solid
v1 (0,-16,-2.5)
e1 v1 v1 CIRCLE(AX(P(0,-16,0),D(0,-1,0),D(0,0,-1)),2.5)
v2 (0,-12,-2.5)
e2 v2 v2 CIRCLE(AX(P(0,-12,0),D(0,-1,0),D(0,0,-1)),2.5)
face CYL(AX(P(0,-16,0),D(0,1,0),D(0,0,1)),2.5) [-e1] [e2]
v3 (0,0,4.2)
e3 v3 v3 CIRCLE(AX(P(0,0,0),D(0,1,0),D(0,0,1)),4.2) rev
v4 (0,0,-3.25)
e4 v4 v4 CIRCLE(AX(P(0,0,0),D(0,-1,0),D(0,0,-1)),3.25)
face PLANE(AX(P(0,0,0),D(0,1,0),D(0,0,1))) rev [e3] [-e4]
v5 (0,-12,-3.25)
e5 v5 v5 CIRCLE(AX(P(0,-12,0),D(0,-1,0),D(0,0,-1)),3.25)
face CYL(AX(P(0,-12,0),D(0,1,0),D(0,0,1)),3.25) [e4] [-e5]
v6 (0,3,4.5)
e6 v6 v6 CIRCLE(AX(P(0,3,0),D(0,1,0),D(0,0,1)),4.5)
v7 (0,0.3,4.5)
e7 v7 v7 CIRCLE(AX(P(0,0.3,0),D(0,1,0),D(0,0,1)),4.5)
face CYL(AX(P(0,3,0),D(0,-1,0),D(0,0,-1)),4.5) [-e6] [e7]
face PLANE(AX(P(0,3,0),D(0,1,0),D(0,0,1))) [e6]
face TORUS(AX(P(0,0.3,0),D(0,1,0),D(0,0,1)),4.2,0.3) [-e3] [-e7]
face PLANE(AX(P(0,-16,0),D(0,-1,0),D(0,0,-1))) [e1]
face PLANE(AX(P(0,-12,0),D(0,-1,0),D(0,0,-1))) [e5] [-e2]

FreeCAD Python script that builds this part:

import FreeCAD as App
import Part
import Sketcher

V = App.Vector
Q = App.Units.Quantity


def edges_at(feature, points):
    """Names of the edges that pass closest to the given points."""
    edges = feature.Shape.Edges
    near = lambda p: min(range(len(edges)), key=lambda i: edges[i].distToShape(Part.Vertex(*p))[0])
    return sorted({f"Edge{near(p) + 1}" for p in points})

doc = App.newDocument("Part")
body = doc.addObject("PartDesign::Body", "Body")

sketch1 = body.newObject("Sketcher::SketchObject", "Sketch")
sketch1.AttachmentSupport = (doc.getObject("XZ_Plane"), [""])
sketch1.MapMode = "FlatFace"
sketch1.addGeometry(Part.Circle(V(0, 0, 0), V(0, 0, 1), 4.5), False)
sketch1.addConstraint(Sketcher.Constraint("Coincident", 0, 3, -1, 1))
sketch1.addConstraint(Sketcher.Constraint("Diameter", 0, Q("9 mm")))
pad1 = body.newObject("PartDesign::Pad", "Pad")
pad1.Profile = sketch1
pad1.Length = 3
pad1.Reversed = True

sketch2 = body.newObject("Sketcher::SketchObject", "Sketch001")
sketch2.AttachmentSupport = (doc.getObject("XZ_Plane"), [""])
sketch2.MapMode = "FlatFace"
sketch2.addGeometry(Part.Circle(V(0, 0, 0), V(0, 0, 1), 3.2), False)
sketch2.addConstraint(Sketcher.Constraint("Coincident", 0, 3, -1, 1))
sketch2.addConstraint(Sketcher.Constraint("Diameter", 0, Q("6.5 mm")))
pad2 = body.newObject("PartDesign::Pad", "Pad001")
pad2.Profile = sketch2
pad2.Length = 12

sketch3 = body.newObject("Sketcher::SketchObject", "Sketch002")
sketch3.AttachmentSupport = (doc.getObject("XZ_Plane"), [""])
sketch3.MapMode = "FlatFace"
sketch3.AttachmentOffset = App.Placement(V(0, 0, 12), App.Rotation())
sketch3.addGeometry(Part.Circle(V(0, 0, 0), V(0, 0, 1), 2.5), False)
sketch3.addConstraint(Sketcher.Constraint("Coincident", 0, 3, -1, 1))
sketch3.addConstraint(Sketcher.Constraint("Diameter", 0, Q("5 mm")))
pad3 = body.newObject("PartDesign::Pad", "Pad002")
pad3.Profile = sketch3
pad3.Length = 4
doc.recompute()

fillet = body.newObject("PartDesign::Fillet", "Fillet")
fillet.Base = (pad3, edges_at(pad3, [(0, 0, -4.5)]))
fillet.Radius = 0.3

doc.recompute()
